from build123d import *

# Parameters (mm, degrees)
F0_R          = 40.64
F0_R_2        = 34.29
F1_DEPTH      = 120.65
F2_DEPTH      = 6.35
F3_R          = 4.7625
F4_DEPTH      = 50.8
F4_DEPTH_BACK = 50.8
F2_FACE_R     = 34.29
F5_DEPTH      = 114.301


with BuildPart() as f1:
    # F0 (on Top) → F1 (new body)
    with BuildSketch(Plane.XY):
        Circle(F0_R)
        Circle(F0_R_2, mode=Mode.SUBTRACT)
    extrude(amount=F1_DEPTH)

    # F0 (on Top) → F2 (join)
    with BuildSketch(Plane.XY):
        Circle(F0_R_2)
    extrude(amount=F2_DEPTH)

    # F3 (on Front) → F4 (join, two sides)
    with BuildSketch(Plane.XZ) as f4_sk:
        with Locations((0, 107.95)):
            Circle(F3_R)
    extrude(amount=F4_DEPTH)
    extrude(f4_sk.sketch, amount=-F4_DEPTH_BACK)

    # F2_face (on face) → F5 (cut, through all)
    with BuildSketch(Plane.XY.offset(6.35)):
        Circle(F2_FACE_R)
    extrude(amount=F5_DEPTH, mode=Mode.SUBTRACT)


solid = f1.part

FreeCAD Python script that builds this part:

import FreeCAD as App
import Part
import Sketcher
Q = App.Units.Quantity

doc = App.newDocument("Part")
body = doc.addObject("PartDesign::Body", "Body")

# Sketch on XY plane
sketch1 = body.newObject("Sketcher::SketchObject", "Sketch")
sketch1.AttachmentSupport = (doc.getObject("XY_Plane"), [""])
sketch1.MapMode = "FlatFace"
sketch1.addGeometry(Part.Circle(App.Vector(0, 0, 0), App.Vector(0, 0, 1), 41), False)
sketch1.addGeometry(Part.Circle(App.Vector(0, 0, 0), App.Vector(0, 0, 1), 34), False)
sketch1.addConstraint(Sketcher.Constraint("Coincident", 0, 3, -1, 1))
sketch1.addConstraint(Sketcher.Constraint("Coincident", 1, 3, -1, 1))
sketch1.addConstraint(Sketcher.Constraint("Diameter", 0, Q("3.2 in")))
sketch1.addConstraint(Sketcher.Constraint("Diameter", 1, Q("2.7 in")))
pad1 = body.newObject("PartDesign::Pad", "Pad")
pad1.Profile = sketch1
pad1.Length = Q("4.75 in")

# Sketch on XY plane
sketch2 = body.newObject("Sketcher::SketchObject", "Sketch001")
sketch2.AttachmentSupport = (doc.getObject("XY_Plane"), [""])
sketch2.MapMode = "FlatFace"
sketch2.addGeometry(Part.Circle(App.Vector(0, 0, 0), App.Vector(0, 0, 1), 34), False)
sketch2.addConstraint(Sketcher.Constraint("Coincident", 0, 3, -1, 1))
sketch2.addConstraint(Sketcher.Constraint("Diameter", 0, Q("2.7 in")))
pad2 = body.newObject("PartDesign::Pad", "Pad001")
pad2.Profile = sketch2
pad2.Length = Q("0.25 in")

# Sketch on XZ plane
sketch3 = body.newObject("Sketcher::SketchObject", "Sketch002")
sketch3.AttachmentSupport = (doc.getObject("XZ_Plane"), [""])
sketch3.MapMode = "FlatFace"
sketch3.addGeometry(Part.Circle(App.Vector(0, 108, 0), App.Vector(0, 0, 1), 4.8), False)
sketch3.addConstraint(Sketcher.Constraint("PointOnObject", 0, 3, -2))
sketch3.addConstraint(Sketcher.Constraint("Diameter", 0, Q("0.375 in")))
sketch3.addConstraint(Sketcher.Constraint("DistanceY", -1, 1, 0, 3, Q("4.25 in")))
pad3 = body.newObject("PartDesign::Pad", "Pad002")
pad3.Profile = sketch3
pad3.Type = "TwoLengths"
pad3.Length = Q("2 in")
pad3.Length2 = Q("2 in")

# Sketch on XY plane
sketch4 = body.newObject("Sketcher::SketchObject", "Sketch003")
sketch4.AttachmentSupport = (doc.getObject("XY_Plane"), [""])
sketch4.MapMode = "FlatFace"
sketch4.AttachmentOffset = App.Placement(App.Vector(0, 0, 0.25 * 25.4), App.Rotation())
sketch4.addGeometry(Part.Circle(App.Vector(0, 0, 0), App.Vector(0, 0, 1), 34), False)
sketch4.addConstraint(Sketcher.Constraint("Coincident", 0, 3, -1, 1))
sketch4.addConstraint(Sketcher.Constraint("Diameter", 0, Q("2.7 in")))
pocket1 = body.newObject("PartDesign::Pocket", "Pocket")
pocket1.Profile = sketch4
pocket1.Type = "ThroughAll"
pocket1.Reversed = True

doc.recompute()
